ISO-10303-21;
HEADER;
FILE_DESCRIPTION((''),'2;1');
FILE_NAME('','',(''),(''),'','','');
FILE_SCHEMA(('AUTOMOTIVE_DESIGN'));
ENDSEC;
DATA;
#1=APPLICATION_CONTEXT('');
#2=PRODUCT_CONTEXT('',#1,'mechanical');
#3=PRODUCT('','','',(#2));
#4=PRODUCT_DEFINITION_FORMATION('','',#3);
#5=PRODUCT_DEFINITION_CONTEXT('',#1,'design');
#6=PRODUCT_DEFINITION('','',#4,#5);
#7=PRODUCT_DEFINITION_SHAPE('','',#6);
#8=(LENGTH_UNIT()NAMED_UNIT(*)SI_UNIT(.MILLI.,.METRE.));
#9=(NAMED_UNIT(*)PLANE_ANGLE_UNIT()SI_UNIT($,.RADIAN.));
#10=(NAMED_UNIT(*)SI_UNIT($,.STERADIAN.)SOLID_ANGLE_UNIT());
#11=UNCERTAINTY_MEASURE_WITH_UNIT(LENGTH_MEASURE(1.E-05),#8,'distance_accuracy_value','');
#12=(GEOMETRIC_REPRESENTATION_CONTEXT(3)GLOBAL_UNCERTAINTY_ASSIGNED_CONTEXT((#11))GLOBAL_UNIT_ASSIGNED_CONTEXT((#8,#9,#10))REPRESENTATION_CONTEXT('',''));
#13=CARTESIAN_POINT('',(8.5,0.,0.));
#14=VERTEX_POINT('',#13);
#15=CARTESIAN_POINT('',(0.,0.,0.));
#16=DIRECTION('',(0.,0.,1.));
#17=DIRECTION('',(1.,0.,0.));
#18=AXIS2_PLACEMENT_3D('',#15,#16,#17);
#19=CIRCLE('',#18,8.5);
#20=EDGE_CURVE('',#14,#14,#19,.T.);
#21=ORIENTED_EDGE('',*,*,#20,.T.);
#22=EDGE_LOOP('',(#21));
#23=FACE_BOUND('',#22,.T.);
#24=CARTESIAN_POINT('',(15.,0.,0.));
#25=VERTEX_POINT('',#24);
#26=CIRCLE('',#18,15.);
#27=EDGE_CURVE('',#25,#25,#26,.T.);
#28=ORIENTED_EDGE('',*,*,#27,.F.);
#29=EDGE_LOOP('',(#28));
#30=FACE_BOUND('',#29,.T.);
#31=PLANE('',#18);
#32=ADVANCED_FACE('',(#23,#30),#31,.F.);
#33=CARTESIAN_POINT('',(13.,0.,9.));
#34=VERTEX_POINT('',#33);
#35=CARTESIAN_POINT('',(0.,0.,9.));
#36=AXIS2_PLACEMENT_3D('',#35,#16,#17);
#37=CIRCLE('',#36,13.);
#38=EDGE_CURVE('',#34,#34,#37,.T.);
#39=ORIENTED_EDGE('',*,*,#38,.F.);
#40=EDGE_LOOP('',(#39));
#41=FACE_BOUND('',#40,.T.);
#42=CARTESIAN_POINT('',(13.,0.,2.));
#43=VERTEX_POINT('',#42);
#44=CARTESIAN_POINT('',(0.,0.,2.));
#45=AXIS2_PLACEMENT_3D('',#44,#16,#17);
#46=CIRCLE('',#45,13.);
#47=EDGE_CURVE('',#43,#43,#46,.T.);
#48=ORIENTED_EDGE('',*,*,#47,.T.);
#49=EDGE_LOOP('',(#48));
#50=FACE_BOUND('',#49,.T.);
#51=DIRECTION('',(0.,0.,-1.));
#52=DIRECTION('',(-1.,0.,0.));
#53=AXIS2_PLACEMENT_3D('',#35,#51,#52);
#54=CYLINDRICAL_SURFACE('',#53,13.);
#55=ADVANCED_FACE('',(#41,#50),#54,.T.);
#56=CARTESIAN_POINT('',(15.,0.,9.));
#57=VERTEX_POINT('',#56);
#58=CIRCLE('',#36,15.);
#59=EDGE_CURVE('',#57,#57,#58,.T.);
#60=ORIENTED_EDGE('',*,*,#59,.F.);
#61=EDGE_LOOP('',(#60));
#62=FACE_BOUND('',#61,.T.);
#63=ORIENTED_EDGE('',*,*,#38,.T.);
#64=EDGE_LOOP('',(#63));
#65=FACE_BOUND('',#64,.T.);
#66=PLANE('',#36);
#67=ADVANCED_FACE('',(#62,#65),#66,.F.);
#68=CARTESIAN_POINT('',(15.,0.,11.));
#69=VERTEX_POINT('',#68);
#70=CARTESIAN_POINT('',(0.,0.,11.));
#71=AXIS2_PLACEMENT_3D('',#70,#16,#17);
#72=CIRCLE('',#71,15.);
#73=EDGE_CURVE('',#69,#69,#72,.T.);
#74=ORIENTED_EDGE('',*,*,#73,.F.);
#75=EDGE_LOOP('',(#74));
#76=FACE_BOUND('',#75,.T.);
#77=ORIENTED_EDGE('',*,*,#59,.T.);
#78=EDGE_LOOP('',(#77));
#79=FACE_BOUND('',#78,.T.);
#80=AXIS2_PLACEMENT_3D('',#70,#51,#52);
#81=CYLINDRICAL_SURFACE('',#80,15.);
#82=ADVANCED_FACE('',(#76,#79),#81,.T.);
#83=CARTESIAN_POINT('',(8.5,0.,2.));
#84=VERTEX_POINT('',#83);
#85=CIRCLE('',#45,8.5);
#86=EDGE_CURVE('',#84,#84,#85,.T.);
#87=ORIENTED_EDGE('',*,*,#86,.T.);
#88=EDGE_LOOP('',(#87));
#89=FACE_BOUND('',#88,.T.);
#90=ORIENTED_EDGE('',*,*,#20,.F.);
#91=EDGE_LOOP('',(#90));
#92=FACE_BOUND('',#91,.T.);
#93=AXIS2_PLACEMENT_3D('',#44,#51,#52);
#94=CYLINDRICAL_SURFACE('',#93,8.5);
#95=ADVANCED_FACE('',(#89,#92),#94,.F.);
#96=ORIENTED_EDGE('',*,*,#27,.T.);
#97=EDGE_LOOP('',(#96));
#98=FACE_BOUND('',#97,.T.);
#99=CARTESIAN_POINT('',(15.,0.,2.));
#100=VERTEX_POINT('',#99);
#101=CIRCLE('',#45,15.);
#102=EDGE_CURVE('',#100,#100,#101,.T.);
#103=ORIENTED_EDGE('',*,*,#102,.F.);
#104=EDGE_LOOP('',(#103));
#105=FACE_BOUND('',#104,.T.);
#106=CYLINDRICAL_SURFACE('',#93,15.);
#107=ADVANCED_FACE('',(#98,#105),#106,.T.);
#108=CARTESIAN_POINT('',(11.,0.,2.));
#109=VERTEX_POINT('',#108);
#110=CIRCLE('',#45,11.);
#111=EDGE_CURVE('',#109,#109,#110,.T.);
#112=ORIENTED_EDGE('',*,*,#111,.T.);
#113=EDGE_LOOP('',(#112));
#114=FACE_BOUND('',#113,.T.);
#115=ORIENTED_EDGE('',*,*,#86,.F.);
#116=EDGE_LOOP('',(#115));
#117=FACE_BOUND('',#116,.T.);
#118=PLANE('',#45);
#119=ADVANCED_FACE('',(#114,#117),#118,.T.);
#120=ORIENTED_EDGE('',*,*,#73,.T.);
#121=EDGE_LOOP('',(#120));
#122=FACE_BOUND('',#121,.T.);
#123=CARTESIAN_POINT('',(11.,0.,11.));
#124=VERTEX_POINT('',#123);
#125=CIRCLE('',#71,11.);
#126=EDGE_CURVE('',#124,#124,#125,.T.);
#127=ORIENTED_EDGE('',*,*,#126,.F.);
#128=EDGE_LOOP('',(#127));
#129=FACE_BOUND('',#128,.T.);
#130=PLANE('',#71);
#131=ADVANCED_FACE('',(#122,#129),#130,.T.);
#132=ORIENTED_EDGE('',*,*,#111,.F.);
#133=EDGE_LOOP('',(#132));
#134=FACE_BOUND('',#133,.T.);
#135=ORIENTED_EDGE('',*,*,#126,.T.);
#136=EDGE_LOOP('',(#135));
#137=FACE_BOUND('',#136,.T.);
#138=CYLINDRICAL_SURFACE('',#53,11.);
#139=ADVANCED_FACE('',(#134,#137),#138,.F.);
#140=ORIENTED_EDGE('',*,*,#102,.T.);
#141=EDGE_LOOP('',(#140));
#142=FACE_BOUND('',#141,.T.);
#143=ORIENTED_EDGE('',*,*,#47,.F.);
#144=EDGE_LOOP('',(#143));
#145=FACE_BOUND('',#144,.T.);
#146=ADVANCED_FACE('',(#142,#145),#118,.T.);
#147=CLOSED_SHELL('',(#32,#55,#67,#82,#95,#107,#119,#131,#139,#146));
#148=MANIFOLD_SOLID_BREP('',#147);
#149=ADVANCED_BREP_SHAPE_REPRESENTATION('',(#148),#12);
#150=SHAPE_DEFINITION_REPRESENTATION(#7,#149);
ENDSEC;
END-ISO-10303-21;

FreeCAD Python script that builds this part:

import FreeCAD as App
import Part
import Sketcher
Q = App.Units.Quantity

doc = App.newDocument("Part")
body = doc.addObject("PartDesign::Body", "Body")

sketch1 = doc.addObject("Sketcher::SketchObject", "Sketch")
body.addObject(sketch1)
sketch1.AttachmentSupport = (doc.XY_Plane, [""])
sketch1.MapMode = "FlatFace"
sketch1.addGeometry([
    Part.Circle(App.Vector(0, 0, 0), App.Vector(0, 0, 1), 15),
    Part.Circle(App.Vector(0, 0, 0), App.Vector(0, 0, 1), 8.5),
], False)
sketch1.addConstraint([
    Sketcher.Constraint("Coincident", 0, 3, -1, 1),
    Sketcher.Constraint("Coincident", 1, 3, -1, 1),
    Sketcher.Constraint("Diameter", 0, Q("30 mm")),
    Sketcher.Constraint("Diameter", 1, Q("17 mm")),
])
pad1 = doc.addObject("PartDesign::Pad", "Pad")
body.addObject(pad1)
pad1.Profile = sketch1
pad1.Length = 2

sketch2 = doc.addObject("Sketcher::SketchObject", "Sketch001")
body.addObject(sketch2)
sketch2.AttachmentSupport = (doc.XY_Plane, [""])
sketch2.MapMode = "FlatFace"
sketch2.AttachmentOffset = App.Placement(App.Vector(0, 0, 2), App.Rotation())
sketch2.addGeometry([
    Part.Circle(App.Vector(0, 0, 0), App.Vector(0, 0, 1), 13),
    Part.Circle(App.Vector(0, 0, 0), App.Vector(0, 0, 1), 11),
], False)
sketch2.addConstraint([
    Sketcher.Constraint("Coincident", 0, 3, -1, 1),
    Sketcher.Constraint("Coincident", 1, 3, -1, 1),
    Sketcher.Constraint("Diameter", 0, Q("26 mm")),
    Sketcher.Constraint("Diameter", 1, Q("22 mm")),
])
pad2 = doc.addObject("PartDesign::Pad", "Pad001")
body.addObject(pad2)
pad2.Profile = sketch2
pad2.Length = 7

sketch3 = doc.addObject("Sketcher::SketchObject", "Sketch002")
body.addObject(sketch3)
sketch3.AttachmentSupport = (doc.XY_Plane, [""])
sketch3.MapMode = "FlatFace"
sketch3.AttachmentOffset = App.Placement(App.Vector(0, 0, 9), App.Rotation())
sketch3.addGeometry([
    Part.Circle(App.Vector(0, 0, 0), App.Vector(0, 0, 1), 15),
    Part.Circle(App.Vector(0, 0, 0), App.Vector(0, 0, 1), 11),
], False)
sketch3.addConstraint([
    Sketcher.Constraint("Coincident", 0, 3, -1, 1),
    Sketcher.Constraint("Coincident", 1, 3, -1, 1),
    Sketcher.Constraint("Diameter", 0, Q("30 mm")),
    Sketcher.Constraint("Diameter", 1, Q("22 mm")),
])
pad3 = doc.addObject("PartDesign::Pad", "Pad002")
body.addObject(pad3)
pad3.Profile = sketch3
pad3.Length = 2

doc.recompute()
